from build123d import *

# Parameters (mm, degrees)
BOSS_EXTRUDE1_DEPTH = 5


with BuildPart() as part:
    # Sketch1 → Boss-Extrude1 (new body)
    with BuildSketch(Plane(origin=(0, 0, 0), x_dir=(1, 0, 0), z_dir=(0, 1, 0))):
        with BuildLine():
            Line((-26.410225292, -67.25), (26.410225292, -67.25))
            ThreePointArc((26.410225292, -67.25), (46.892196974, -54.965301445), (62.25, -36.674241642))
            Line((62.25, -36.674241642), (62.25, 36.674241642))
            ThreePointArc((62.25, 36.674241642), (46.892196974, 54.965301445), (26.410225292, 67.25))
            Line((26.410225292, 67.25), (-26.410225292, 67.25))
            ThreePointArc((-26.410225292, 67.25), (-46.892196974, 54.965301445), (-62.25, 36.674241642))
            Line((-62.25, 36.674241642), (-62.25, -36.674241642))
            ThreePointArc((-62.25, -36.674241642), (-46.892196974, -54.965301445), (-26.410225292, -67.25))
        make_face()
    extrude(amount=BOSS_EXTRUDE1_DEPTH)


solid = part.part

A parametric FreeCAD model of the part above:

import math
import FreeCAD as App
import Part
import Sketcher
from FreeCAD import Vector
Q = App.Units.Quantity

doc = App.newDocument("Part")
body = doc.addObject("PartDesign::Body", "Body")

# Sketch on XZ plane
sketch1 = body.newObject("Sketcher::SketchObject", "Sketch")
sketch1.AttachmentSupport = (doc.getObject("XZ_Plane"), [""])
sketch1.MapMode = "FlatFace"
sketch1.addGeometry([
    Part.LineSegment(Vector(-26, 67, 0), Vector(26, 67, 0)),  # 0
    Part.ArcOfCircle(Part.Circle(Vector(0, 0, 0), Vector(0, 0, 1), 72), math.radians(31), math.radians(69)),  # 1
    Part.LineSegment(Vector(62, 37, 0), Vector(62, -37, 0)),  # 2
    Part.ArcOfCircle(Part.Circle(Vector(0, 0, 0), Vector(0, 0, 1), 72), math.radians(-69), math.radians(-31)),  # 3
    Part.LineSegment(Vector(26, -67, 0), Vector(-26, -67, 0)),  # 4
    Part.ArcOfCircle(Part.Circle(Vector(0, 0, 0), Vector(0, 0, 1), 72), math.radians(-149), math.radians(-111)),  # 5
    Part.LineSegment(Vector(-62, -37, 0), Vector(-62, 37, 0)),  # 6
    Part.ArcOfCircle(Part.Circle(Vector(0, 0, 0), Vector(0, 0, 1), 72), math.radians(111), math.radians(149)),  # 7
], False)
sketch1.addConstraint([
    Sketcher.Constraint("Coincident", 0, 2, 1, 2),
    Sketcher.Constraint("Coincident", 1, 1, 2, 1),
    Sketcher.Constraint("Coincident", 2, 2, 3, 2),
    Sketcher.Constraint("Coincident", 3, 1, 4, 1),
    Sketcher.Constraint("Coincident", 4, 2, 5, 2),
    Sketcher.Constraint("Coincident", 5, 1, 6, 1),
    Sketcher.Constraint("Coincident", 6, 2, 7, 2),
    Sketcher.Constraint("Coincident", 7, 1, 0, 1),
    Sketcher.Constraint("Horizontal", 0),
    Sketcher.Constraint("Vertical", 2),
    Sketcher.Constraint("Horizontal", 4),
    Sketcher.Constraint("Vertical", 6),
    Sketcher.Constraint("Coincident", 1, 3, -1, 1),
    Sketcher.Constraint("Coincident", 3, 3, -1, 1),
    Sketcher.Constraint("Coincident", 5, 3, -1, 1),
    Sketcher.Constraint("Coincident", 7, 3, -1, 1),
    Sketcher.Constraint("Equal", 1, 3),
    Sketcher.Constraint("Equal", 3, 5),
    Sketcher.Constraint("Equal", 5, 7),
    Sketcher.Constraint("Horizontal", 2, 2, 5, 1),
    Sketcher.Constraint("Vertical", 0, 2, 3, 1),
    Sketcher.Constraint("Radius", 1, Q("72.25 mm")),
    Sketcher.Constraint("DistanceY", -1, 1, 0, 2, Q("67.25 mm")),
    Sketcher.Constraint("DistanceX", -1, 1, 1, 1, Q("62.25 mm")),
])
pad1 = body.newObject("PartDesign::Pad", "Pad")
pad1.Profile = sketch1
pad1.Length = 5
pad1.Reversed = True

doc.recompute()
